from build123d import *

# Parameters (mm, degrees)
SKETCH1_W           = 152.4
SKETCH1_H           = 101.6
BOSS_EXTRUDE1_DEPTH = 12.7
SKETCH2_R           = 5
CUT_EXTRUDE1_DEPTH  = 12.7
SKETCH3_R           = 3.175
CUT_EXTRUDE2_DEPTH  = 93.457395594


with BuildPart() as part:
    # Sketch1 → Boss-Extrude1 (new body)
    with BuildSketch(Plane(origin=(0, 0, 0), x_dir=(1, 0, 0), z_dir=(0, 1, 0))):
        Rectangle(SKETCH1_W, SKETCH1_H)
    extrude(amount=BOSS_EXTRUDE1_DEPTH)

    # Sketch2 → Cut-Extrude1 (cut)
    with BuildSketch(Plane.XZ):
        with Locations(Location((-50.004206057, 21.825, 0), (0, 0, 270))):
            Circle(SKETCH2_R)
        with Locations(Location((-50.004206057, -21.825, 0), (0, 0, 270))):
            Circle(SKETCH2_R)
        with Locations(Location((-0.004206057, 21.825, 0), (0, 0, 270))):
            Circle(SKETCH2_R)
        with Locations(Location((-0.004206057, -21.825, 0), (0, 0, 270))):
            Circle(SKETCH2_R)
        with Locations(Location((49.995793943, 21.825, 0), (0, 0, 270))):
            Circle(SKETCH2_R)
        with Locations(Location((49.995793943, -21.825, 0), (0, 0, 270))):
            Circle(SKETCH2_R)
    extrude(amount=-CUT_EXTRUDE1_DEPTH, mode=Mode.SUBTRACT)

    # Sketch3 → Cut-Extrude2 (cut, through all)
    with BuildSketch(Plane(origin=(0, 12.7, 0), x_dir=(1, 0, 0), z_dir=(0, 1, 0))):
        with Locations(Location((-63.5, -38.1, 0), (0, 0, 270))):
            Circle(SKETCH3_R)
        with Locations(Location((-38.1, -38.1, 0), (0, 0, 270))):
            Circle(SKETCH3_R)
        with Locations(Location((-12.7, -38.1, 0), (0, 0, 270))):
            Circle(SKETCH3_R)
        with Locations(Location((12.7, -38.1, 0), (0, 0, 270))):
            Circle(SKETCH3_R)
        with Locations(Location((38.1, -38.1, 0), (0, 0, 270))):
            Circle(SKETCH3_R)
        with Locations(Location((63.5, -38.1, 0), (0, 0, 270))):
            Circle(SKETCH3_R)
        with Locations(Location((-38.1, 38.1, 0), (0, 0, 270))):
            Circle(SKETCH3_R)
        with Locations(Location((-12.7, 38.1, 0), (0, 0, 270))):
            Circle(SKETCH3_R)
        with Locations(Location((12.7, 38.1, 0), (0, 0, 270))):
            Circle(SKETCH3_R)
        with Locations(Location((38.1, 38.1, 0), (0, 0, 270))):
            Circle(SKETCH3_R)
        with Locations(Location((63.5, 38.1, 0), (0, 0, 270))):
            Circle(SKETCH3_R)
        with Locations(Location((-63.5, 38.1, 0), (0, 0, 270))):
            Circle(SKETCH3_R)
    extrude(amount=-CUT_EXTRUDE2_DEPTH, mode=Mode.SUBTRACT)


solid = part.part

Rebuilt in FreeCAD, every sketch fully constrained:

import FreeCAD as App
import Part
import Sketcher
from FreeCAD import Vector
Q = App.Units.Quantity

doc = App.newDocument("Part")
body = doc.addObject("PartDesign::Body", "Body")

# Sketch on XZ plane
sketch1 = body.newObject("Sketcher::SketchObject", "Sketch")
sketch1.AttachmentSupport = (doc.getObject("XZ_Plane"), [""])
sketch1.MapMode = "FlatFace"
sketch1.addGeometry([
    Part.LineSegment(Vector(-76.2, -50.8, 0), Vector(-76.2, 50.8, 0)),
    Part.LineSegment(Vector(-76.2, 50.8, 0), Vector(76.2, 50.8, 0)),
    Part.LineSegment(Vector(76.2, 50.8, 0), Vector(76.2, -50.8, 0)),
    Part.LineSegment(Vector(76.2, -50.8, 0), Vector(-76.2, -50.8, 0)),
], False)
sketch1.addConstraint([
    Sketcher.Constraint("Coincident", 0, 2, 1, 1),
    Sketcher.Constraint("Coincident", 1, 2, 2, 1),
    Sketcher.Constraint("Coincident", 2, 2, 3, 1),
    Sketcher.Constraint("Coincident", 3, 2, 0, 1),
    Sketcher.Constraint("Vertical", 0),
    Sketcher.Constraint("Horizontal", 1),
    Sketcher.Constraint("Vertical", 2),
    Sketcher.Constraint("Horizontal", 3),
    Sketcher.Constraint("Symmetric", 0, 2, 2, 2, -1, 1),
    Sketcher.Constraint("DistanceX", 1, 1, 1, 2, Q("6 in")),
    Sketcher.Constraint("DistanceY", 0, 1, 0, 2, Q("4 in")),
])
pad1 = body.newObject("PartDesign::Pad", "Pad")
pad1.Profile = sketch1
pad1.Length = Q("0.5 in")
pad1.Reversed = True

# Sketch on XZ plane
sketch2 = body.newObject("Sketcher::SketchObject", "Sketch001")
sketch2.AttachmentSupport = (doc.getObject("XZ_Plane"), [""])
sketch2.MapMode = "FlatFace"
sketch2.addGeometry([
    Part.Circle(Vector(-50.004206, 21.825, 0), Vector(0, 0, 1), 5),  # 0
    Part.Circle(Vector(-50.004206, -21.825, 0), Vector(0, 0, 1), 5),  # 1
    Part.Circle(Vector(-0.004206, 21.825, 0), Vector(0, 0, 1), 5),  # 2
    Part.Circle(Vector(-0.004206, -21.825, 0), Vector(0, 0, 1), 5),  # 3
    Part.Circle(Vector(49.995794, 21.825, 0), Vector(0, 0, 1), 5),  # 4
    Part.Circle(Vector(49.995794, -21.825, 0), Vector(0, 0, 1), 5),  # 5
], False)
sketch2.addConstraint([
    Sketcher.Constraint("Equal", 0, 1),
    Sketcher.Constraint("Equal", 1, 2),
    Sketcher.Constraint("Equal", 2, 3),
    Sketcher.Constraint("Equal", 3, 4),
    Sketcher.Constraint("Equal", 4, 5),
    Sketcher.Constraint("Symmetric", 0, 3, 1, 3, -1),
    Sketcher.Constraint("Symmetric", 2, 3, 3, 3, -1),
    Sketcher.Constraint("Symmetric", 4, 3, 5, 3, -1),
    Sketcher.Constraint("Horizontal", 0, 3, 2, 3),
    Sketcher.Constraint("Horizontal", 2, 3, 4, 3),
    Sketcher.Constraint("Diameter", 0, Q("10 mm")),
    Sketcher.Constraint("DistanceY", -1, 1, 0, 3, Q("21.825 mm")),
    Sketcher.Constraint("DistanceX", 0, 3, 2, 3, Q("50 mm")),
    Sketcher.Constraint("DistanceX", 2, 3, 4, 3, Q("50 mm")),
    Sketcher.Constraint("DistanceX", 0, 3, -1, 1, Q("50.004206 mm")),
])
pocket1 = body.newObject("PartDesign::Pocket", "Pocket")
pocket1.Profile = sketch2
pocket1.Length = Q("0.5 in")

# Sketch on XZ plane
sketch3 = body.newObject("Sketcher::SketchObject", "Sketch002")
sketch3.AttachmentSupport = (doc.getObject("XZ_Plane"), [""])
sketch3.MapMode = "FlatFace"
sketch3.AttachmentOffset = App.Placement(Vector(0, 0, -0.5 * 25.4), App.Rotation())
sketch3.addGeometry([
    Part.Circle(Vector(-63.5, 38.1, 0), Vector(0, 0, 1), 3.175),  # 0
    Part.Circle(Vector(-38.1, 38.1, 0), Vector(0, 0, 1), 3.175),  # 1
    Part.Circle(Vector(-12.7, 38.1, 0), Vector(0, 0, 1), 3.175),  # 2
    Part.Circle(Vector(12.7, 38.1, 0), Vector(0, 0, 1), 3.175),  # 3
    Part.Circle(Vector(38.1, 38.1, 0), Vector(0, 0, 1), 3.175),  # 4
    Part.Circle(Vector(63.5, 38.1, 0), Vector(0, 0, 1), 3.175),  # 5
    Part.Circle(Vector(-38.1, -38.1, 0), Vector(0, 0, 1), 3.175),  # 6
    Part.Circle(Vector(-12.7, -38.1, 0), Vector(0, 0, 1), 3.175),  # 7
    Part.Circle(Vector(12.7, -38.1, 0), Vector(0, 0, 1), 3.175),  # 8
    Part.Circle(Vector(38.1, -38.1, 0), Vector(0, 0, 1), 3.175),  # 9
    Part.Circle(Vector(63.5, -38.1, 0), Vector(0, 0, 1), 3.175),  # 10
    Part.Circle(Vector(-63.5, -38.1, 0), Vector(0, 0, 1), 3.175),  # 11
], False)
sketch3.addConstraint([
    Sketcher.Constraint("Equal", 0, 1),
    Sketcher.Constraint("Equal", 1, 2),
    Sketcher.Constraint("Equal", 2, 3),
    Sketcher.Constraint("Equal", 3, 4),
    Sketcher.Constraint("Equal", 4, 5),
    Sketcher.Constraint("Equal", 5, 6),
    Sketcher.Constraint("Equal", 6, 7),
    Sketcher.Constraint("Equal", 7, 8),
    Sketcher.Constraint("Equal", 8, 9),
    Sketcher.Constraint("Equal", 9, 10),
    Sketcher.Constraint("Equal", 10, 11),
    Sketcher.Constraint("Symmetric", 4, 3, 6, 3, -1, 1),
    Sketcher.Constraint("Symmetric", 3, 3, 7, 3, -1, 1),
    Sketcher.Constraint("Symmetric", 2, 3, 8, 3, -1, 1),
    Sketcher.Constraint("Symmetric", 1, 3, 9, 3, -1, 1),
    Sketcher.Constraint("Symmetric", 0, 3, 10, 3, -1, 1),
    Sketcher.Constraint("Symmetric", 5, 3, 11, 3, -1, 1),
    Sketcher.Constraint("Symmetric", 2, 3, 3, 3, -2),
    Sketcher.Constraint("Symmetric", 1, 3, 4, 3, -2),
    Sketcher.Constraint("Symmetric", 0, 3, 5, 3, -2),
    Sketcher.Constraint("Horizontal", 0, 3, 1, 3),
    Sketcher.Constraint("Horizontal", 1, 3, 2, 3),
    Sketcher.Constraint("Diameter", 0, Q("0.25 in")),
    Sketcher.Constraint("DistanceX", 0, 3, 1, 3, Q("1 in")),
    Sketcher.Constraint("DistanceX", 1, 3, 2, 3, Q("1 in")),
    Sketcher.Constraint("DistanceX", 2, 3, 3, 3, Q("1 in")),
    Sketcher.Constraint("DistanceY", 6, 3, 1, 3, Q("3 in")),
])
pocket2 = body.newObject("PartDesign::Pocket", "Pocket001")
pocket2.Profile = sketch3
pocket2.Type = "ThroughAll"
pocket2.Reversed = True

doc.recompute()
